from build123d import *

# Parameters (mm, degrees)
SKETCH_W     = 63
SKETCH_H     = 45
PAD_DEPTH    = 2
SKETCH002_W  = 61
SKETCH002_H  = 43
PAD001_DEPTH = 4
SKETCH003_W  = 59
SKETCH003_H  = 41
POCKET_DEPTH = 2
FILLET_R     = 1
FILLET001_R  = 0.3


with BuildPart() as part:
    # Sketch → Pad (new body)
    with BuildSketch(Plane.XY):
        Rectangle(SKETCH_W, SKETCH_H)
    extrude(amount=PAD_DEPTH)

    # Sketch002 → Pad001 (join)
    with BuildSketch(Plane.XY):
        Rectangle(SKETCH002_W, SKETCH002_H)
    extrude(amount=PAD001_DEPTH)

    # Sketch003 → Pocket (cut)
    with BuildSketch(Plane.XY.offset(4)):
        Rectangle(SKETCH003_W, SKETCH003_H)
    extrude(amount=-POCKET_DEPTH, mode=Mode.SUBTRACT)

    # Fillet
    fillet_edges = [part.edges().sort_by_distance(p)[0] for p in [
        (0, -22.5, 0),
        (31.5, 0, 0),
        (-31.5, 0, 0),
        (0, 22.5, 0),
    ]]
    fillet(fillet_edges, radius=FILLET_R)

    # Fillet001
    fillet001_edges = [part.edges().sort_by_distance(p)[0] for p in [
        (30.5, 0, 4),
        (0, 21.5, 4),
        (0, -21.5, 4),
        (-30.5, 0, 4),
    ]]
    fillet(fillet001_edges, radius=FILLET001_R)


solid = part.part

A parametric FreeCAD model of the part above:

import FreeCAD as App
import Part
import Sketcher
from FreeCAD import Vector
Q = App.Units.Quantity


def edges_at(feature, points):
    """Names of the edges that pass closest to the given points."""
    edges = feature.Shape.Edges
    near = lambda p: min(range(len(edges)), key=lambda i: edges[i].distToShape(Part.Vertex(*p))[0])
    return sorted({f"Edge{near(p) + 1}" for p in points})

doc = App.newDocument("Part")
body = doc.addObject("PartDesign::Body", "Body")

sketch1 = doc.addObject("Sketcher::SketchObject", "Sketch")
body.addObject(sketch1)
sketch1.AttachmentSupport = (doc.XY_Plane, [""])
sketch1.MapMode = "FlatFace"
sketch1.addGeometry([
    Part.LineSegment(Vector(-32, 22, 0), Vector(-32, -22, 0)),
    Part.LineSegment(Vector(-32, -22, 0), Vector(32, -22, 0)),
    Part.LineSegment(Vector(32, -22, 0), Vector(32, 22, 0)),
    Part.LineSegment(Vector(32, 22, 0), Vector(-32, 22, 0)),
], False)
sketch1.addConstraint([
    Sketcher.Constraint("Coincident", 0, 2, 1, 1),
    Sketcher.Constraint("Coincident", 1, 2, 2, 1),
    Sketcher.Constraint("Coincident", 2, 2, 3, 1),
    Sketcher.Constraint("Coincident", 3, 2, 0, 1),
    Sketcher.Constraint("Vertical", 0),
    Sketcher.Constraint("Horizontal", 1),
    Sketcher.Constraint("Vertical", 2),
    Sketcher.Constraint("Horizontal", 3),
    Sketcher.Constraint("Symmetric", 0, 2, 2, 2, -1, 1),
    Sketcher.Constraint("DistanceX", 1, 1, 1, 2, Q("63 mm")),
    Sketcher.Constraint("DistanceY", 0, 2, 0, 1, Q("45 mm")),
])
pad1 = doc.addObject("PartDesign::Pad", "Pad")
body.addObject(pad1)
pad1.Profile = sketch1
pad1.Length = 2

sketch2 = doc.addObject("Sketcher::SketchObject", "Sketch001")
body.addObject(sketch2)
sketch2.AttachmentSupport = (doc.XY_Plane, [""])
sketch2.MapMode = "FlatFace"
sketch2.addGeometry([
    Part.LineSegment(Vector(-30, 22, 0), Vector(-30, -22, 0)),
    Part.LineSegment(Vector(-30, -22, 0), Vector(30, -22, 0)),
    Part.LineSegment(Vector(30, -22, 0), Vector(30, 22, 0)),
    Part.LineSegment(Vector(30, 22, 0), Vector(-30, 22, 0)),
], False)
sketch2.addConstraint([
    Sketcher.Constraint("Coincident", 0, 2, 1, 1),
    Sketcher.Constraint("Coincident", 1, 2, 2, 1),
    Sketcher.Constraint("Coincident", 2, 2, 3, 1),
    Sketcher.Constraint("Coincident", 3, 2, 0, 1),
    Sketcher.Constraint("Vertical", 0),
    Sketcher.Constraint("Horizontal", 1),
    Sketcher.Constraint("Vertical", 2),
    Sketcher.Constraint("Horizontal", 3),
    Sketcher.Constraint("Symmetric", 0, 2, 2, 2, -1, 1),
    Sketcher.Constraint("DistanceX", 1, 1, 1, 2, Q("61 mm")),
    Sketcher.Constraint("DistanceY", 0, 2, 0, 1, Q("43 mm")),
])
pad2 = doc.addObject("PartDesign::Pad", "Pad001")
body.addObject(pad2)
pad2.Profile = sketch2
pad2.Length = 4

sketch3 = doc.addObject("Sketcher::SketchObject", "Sketch002")
body.addObject(sketch3)
sketch3.AttachmentSupport = (doc.XY_Plane, [""])
sketch3.MapMode = "FlatFace"
sketch3.AttachmentOffset = App.Placement(Vector(0, 0, 4), App.Rotation())
sketch3.addGeometry([
    Part.LineSegment(Vector(-30, 20, 0), Vector(-30, -20, 0)),
    Part.LineSegment(Vector(-30, -20, 0), Vector(30, -20, 0)),
    Part.LineSegment(Vector(30, -20, 0), Vector(30, 20, 0)),
    Part.LineSegment(Vector(30, 20, 0), Vector(-30, 20, 0)),
], False)
sketch3.addConstraint([
    Sketcher.Constraint("Coincident", 0, 2, 1, 1),
    Sketcher.Constraint("Coincident", 1, 2, 2, 1),
    Sketcher.Constraint("Coincident", 2, 2, 3, 1),
    Sketcher.Constraint("Coincident", 3, 2, 0, 1),
    Sketcher.Constraint("Vertical", 0),
    Sketcher.Constraint("Horizontal", 1),
    Sketcher.Constraint("Vertical", 2),
    Sketcher.Constraint("Horizontal", 3),
    Sketcher.Constraint("Symmetric", 0, 2, 2, 2, -1, 1),
    Sketcher.Constraint("DistanceX", 1, 1, 1, 2, Q("59 mm")),
    Sketcher.Constraint("DistanceY", 0, 2, 0, 1, Q("41 mm")),
])
pocket1 = doc.addObject("PartDesign::Pocket", "Pocket")
body.addObject(pocket1)
pocket1.Profile = sketch3
pocket1.Length = 2
doc.recompute()

fillet = doc.addObject("PartDesign::Fillet", "Fillet")
body.addObject(fillet)
fillet.Base = (pocket1, edges_at(pocket1, [
    (0, -22.5, 0),
    (31.5, 0, 0),
    (-31.5, 0, 0),
    (0, 22.5, 0),
]))
fillet.Radius = 1
doc.recompute()

fillet2 = doc.addObject("PartDesign::Fillet", "Fillet001")
body.addObject(fillet2)
fillet2.Base = (fillet, edges_at(fillet, [
    (30.5, 0, 4),
    (0, 21.5, 4),
    (0, -21.5, 4),
    (-30.5, 0, 4),
]))
fillet2.Radius = 0.3

doc.recompute()
